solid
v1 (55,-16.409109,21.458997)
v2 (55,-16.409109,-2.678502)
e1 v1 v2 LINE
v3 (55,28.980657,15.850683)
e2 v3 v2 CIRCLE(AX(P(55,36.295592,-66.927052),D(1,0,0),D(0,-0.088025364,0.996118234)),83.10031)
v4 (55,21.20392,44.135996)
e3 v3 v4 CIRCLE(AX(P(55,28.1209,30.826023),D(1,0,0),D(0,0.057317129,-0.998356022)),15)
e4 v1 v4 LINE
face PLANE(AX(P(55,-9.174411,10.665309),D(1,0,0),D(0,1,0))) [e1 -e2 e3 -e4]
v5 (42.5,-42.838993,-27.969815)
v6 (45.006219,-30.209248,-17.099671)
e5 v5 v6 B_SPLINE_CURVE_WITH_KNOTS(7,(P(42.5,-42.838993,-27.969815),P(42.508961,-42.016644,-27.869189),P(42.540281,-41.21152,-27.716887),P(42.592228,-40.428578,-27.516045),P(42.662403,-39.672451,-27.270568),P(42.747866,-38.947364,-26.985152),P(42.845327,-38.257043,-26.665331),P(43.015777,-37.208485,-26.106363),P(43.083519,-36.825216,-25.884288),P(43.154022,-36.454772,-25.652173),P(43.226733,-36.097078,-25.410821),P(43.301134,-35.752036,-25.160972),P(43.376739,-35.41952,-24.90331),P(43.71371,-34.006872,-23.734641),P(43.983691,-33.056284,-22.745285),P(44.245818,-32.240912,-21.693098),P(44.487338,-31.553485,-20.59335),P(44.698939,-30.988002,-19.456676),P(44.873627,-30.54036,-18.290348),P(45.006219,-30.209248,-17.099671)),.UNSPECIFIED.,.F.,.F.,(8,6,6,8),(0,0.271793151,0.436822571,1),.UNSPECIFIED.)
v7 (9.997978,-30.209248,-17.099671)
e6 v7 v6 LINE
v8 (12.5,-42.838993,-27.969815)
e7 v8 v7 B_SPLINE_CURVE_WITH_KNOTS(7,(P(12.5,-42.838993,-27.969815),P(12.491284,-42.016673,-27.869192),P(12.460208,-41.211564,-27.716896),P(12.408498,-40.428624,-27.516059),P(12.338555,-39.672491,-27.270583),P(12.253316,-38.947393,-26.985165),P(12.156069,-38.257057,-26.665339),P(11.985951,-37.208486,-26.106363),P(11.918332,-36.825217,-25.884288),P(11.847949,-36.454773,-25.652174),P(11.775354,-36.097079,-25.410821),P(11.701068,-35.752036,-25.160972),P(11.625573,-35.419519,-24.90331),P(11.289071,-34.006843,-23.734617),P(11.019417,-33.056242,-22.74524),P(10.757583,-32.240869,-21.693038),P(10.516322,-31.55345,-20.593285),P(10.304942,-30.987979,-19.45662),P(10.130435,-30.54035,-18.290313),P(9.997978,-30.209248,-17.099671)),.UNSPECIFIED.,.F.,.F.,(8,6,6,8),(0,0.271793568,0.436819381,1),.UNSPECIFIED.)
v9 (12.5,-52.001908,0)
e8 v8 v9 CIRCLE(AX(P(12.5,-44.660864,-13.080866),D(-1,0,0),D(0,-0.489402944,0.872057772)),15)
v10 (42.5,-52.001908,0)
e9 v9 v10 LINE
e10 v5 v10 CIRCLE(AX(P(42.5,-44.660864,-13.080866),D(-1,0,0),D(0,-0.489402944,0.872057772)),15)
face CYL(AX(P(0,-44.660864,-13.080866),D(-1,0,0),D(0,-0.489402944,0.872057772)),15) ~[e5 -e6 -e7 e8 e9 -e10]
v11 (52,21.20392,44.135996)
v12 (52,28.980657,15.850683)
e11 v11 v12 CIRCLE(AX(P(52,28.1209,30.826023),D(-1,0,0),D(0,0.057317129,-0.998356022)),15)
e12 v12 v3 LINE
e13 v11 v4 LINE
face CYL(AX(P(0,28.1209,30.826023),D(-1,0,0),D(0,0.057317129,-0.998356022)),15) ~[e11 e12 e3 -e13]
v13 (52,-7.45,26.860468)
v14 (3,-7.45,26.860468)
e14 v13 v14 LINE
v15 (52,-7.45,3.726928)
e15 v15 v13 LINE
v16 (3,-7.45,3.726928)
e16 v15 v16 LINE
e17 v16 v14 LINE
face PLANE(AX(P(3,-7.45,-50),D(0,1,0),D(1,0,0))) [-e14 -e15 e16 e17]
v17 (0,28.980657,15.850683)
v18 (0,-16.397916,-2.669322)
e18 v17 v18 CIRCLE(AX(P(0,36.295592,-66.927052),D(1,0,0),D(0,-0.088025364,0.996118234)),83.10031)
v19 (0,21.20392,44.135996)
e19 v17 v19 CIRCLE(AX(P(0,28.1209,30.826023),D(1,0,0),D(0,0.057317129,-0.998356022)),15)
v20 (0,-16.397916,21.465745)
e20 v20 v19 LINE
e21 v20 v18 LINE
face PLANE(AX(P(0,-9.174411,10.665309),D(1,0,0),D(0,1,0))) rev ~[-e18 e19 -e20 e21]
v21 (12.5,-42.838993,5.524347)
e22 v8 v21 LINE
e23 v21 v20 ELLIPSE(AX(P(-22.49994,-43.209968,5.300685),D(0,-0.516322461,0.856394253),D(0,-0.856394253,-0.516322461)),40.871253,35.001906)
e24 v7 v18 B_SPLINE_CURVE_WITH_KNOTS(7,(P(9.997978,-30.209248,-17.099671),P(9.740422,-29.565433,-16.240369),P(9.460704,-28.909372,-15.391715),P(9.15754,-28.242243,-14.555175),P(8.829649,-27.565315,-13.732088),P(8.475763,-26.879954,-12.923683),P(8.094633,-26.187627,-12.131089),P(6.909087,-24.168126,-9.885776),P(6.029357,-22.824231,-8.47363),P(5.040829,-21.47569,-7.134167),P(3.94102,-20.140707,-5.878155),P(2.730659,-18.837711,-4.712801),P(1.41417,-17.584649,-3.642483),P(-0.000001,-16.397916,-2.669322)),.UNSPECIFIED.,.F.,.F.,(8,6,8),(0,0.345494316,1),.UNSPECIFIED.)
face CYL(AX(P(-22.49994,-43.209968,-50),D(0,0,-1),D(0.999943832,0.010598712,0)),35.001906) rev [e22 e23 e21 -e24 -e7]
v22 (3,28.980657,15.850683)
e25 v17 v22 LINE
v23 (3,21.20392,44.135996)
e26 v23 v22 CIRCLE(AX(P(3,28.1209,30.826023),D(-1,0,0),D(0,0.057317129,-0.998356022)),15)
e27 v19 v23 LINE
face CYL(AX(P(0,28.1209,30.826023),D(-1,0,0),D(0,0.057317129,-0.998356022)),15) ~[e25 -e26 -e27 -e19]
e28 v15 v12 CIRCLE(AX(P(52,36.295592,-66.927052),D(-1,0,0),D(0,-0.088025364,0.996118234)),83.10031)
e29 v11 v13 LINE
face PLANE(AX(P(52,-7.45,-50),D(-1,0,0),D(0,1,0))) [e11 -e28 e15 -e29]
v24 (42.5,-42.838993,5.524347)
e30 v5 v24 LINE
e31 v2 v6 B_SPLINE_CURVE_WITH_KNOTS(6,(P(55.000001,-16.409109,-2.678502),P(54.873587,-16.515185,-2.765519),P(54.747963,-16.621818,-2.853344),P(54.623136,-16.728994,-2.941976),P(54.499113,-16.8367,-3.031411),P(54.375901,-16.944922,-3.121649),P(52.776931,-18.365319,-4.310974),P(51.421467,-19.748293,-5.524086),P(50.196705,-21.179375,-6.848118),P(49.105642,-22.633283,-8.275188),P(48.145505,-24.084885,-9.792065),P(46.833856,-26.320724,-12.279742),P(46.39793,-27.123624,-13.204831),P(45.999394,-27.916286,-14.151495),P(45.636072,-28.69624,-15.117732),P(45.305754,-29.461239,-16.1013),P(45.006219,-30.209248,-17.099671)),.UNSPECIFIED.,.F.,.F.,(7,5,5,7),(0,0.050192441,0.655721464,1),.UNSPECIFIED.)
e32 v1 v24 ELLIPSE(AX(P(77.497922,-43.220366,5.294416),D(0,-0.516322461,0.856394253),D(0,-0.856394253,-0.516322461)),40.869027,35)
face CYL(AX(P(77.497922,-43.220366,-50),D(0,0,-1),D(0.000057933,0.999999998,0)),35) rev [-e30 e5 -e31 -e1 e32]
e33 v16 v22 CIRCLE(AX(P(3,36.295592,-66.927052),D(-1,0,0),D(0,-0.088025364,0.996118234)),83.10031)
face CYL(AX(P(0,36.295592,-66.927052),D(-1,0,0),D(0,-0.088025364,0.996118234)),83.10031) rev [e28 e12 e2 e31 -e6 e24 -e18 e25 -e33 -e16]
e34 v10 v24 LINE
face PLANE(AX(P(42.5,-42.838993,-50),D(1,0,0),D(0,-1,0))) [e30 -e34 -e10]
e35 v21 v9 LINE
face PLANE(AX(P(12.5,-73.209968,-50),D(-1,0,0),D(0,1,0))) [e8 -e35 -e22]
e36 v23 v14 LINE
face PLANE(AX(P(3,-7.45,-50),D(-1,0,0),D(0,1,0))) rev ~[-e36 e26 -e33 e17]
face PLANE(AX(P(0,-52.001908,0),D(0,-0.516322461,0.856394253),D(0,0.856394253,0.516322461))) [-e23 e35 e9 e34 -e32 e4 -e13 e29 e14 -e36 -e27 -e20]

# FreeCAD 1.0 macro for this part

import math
import FreeCAD as App
import Part
import Sketcher
Q = App.Units.Quantity


def add_polygon(sketch, points):
    """Adds a closed chain of lines whose ends are joined by coincident constraints."""
    first, n = sketch.GeometryCount, len(points)
    for a, b in zip(points, points[1:] + points[:1]):
        sketch.addGeometry(Part.LineSegment(App.Vector(*a, 0), App.Vector(*b, 0)), False)
    for i in range(n):
        sketch.addConstraint(Sketcher.Constraint("Coincident", first + i, 2, first + (i + 1) % n, 1))

doc = App.newDocument("Part")
params = doc.addObject("Spreadsheet::Sheet", "Params")
for row, (alias, value) in enumerate([
    ("sketch1_radius", "15 mm"),
    ("pad1_length", "55 mm"),
    ("sketch2_width", "49 mm"),
    ("sketch2_height", "60.9 mm"),
    ("pocket1_length", "500 mm"),
    ("sketch3_radius", "35 mm"),
    ("sketch3_height", "30 mm"),
    ("pocket2_length", "500 mm"),
], start=1):
    params.set(f"A{row}", alias)
    params.set(f"B{row}", "=" + value)
    params.setAlias(f"B{row}", alias)

body = doc.addObject("PartDesign::Body", "Body")

# Sketch on YZ plane
sketch1 = doc.addObject("Sketcher::SketchObject", "Sketch")
body.addObject(sketch1)
sketch1.AttachmentSupport = (doc.YZ_Plane, [""])
sketch1.MapMode = "FlatFace"
sketch1.addGeometry([
    Part.ArcOfCircle(Part.Circle(App.Vector(28, 31, 0), App.Vector(0, 0, 1), 15), math.radians(-87), math.radians(117)),
    Part.LineSegment(App.Vector(21, 44, 0), App.Vector(-52, 0, 0)),
    Part.ArcOfCircle(Part.Circle(App.Vector(-45, -13, 0), App.Vector(0, 0, 1), 15), math.radians(119), math.radians(344)),
    Part.ArcOfCircle(Part.Circle(App.Vector(36, -67, 0), App.Vector(0, 0, 1), 83), math.radians(95), math.radians(143)),
], False)
sketch1.addConstraint([
    Sketcher.Constraint("Coincident", 0, 2, 1, 1),
    Sketcher.Constraint("Coincident", 1, 2, 2, 1),
    Sketcher.Constraint("Coincident", 2, 2, 3, 2),
    Sketcher.Constraint("Coincident", 3, 1, 0, 1),
    Sketcher.Constraint("Equal", 0, 2),
    Sketcher.Constraint("PointOnObject", 1, 2, -1),
    Sketcher.Constraint("Radius", 0, Q("15 mm")),
    Sketcher.Constraint("Radius", 3, Q("83.10031 mm")),
    Sketcher.Constraint("DistanceX", -1, 1, 0, 3, Q("28.1209 mm")),
    Sketcher.Constraint("DistanceX", 1, 2, 3, 3, Q("88.2975 mm")),
    Sketcher.Constraint("DistanceY", 3, 3, -1, 1, Q("66.927052 mm")),
    Sketcher.Constraint("DistanceX", -1, 1, 0, 2, Q("21.20392 mm")),
    Sketcher.Constraint("DistanceY", 2, 2, -1, 1, Q("17.099671 mm")),
    Sketcher.Constraint("DistanceY", 2, 3, 0, 3, Q("43.906889 mm")),
    Sketcher.Constraint("DistanceX", 1, 2, 0, 3, Q("80.122808 mm")),
])
sketch1.setExpression("Constraints[6]", "Params.sketch1_radius")
pad1 = doc.addObject("PartDesign::Pad", "Pad")
body.addObject(pad1)
pad1.Profile = sketch1
pad1.setExpression("Length", "Params.pad1_length")

# Sketch on XY plane
sketch2 = doc.addObject("Sketcher::SketchObject", "Sketch001")
body.addObject(sketch2)
sketch2.AttachmentSupport = (doc.XY_Plane, [""])
sketch2.MapMode = "FlatFace"
sketch2.AttachmentOffset = App.Placement(App.Vector(0, 0, -50), App.Rotation())
add_polygon(sketch2, [(3, 53), (3, -7), (52, -7), (52, 53)])  # lines 0-3
sketch2.addConstraint([
    Sketcher.Constraint("Vertical", 0),
    Sketcher.Constraint("Horizontal", 1),
    Sketcher.Constraint("Vertical", 2),
    Sketcher.Constraint("Horizontal", 3),
    Sketcher.Constraint("DistanceX", 1, 1, 1, 2, Q("49 mm")),
    Sketcher.Constraint("DistanceY", 0, 2, 0, 1, Q("60.9 mm")),
    Sketcher.Constraint("DistanceX", -1, 1, 0, 2, Q("3 mm")),
    Sketcher.Constraint("DistanceY", 0, 2, -1, 1, Q("7.45 mm")),
])
sketch2.setExpression("Constraints[8]", "Params.sketch2_width")
sketch2.setExpression("Constraints[9]", "Params.sketch2_height")
pocket1 = doc.addObject("PartDesign::Pocket", "Pocket")
body.addObject(pocket1)
pocket1.Profile = sketch2
pocket1.setExpression("Length", "Params.pocket1_length")
pocket1.Reversed = True

# Sketch on XY plane
sketch3 = doc.addObject("Sketcher::SketchObject", "Sketch002")
body.addObject(sketch3)
sketch3.AttachmentSupport = (doc.XY_Plane, [""])
sketch3.MapMode = "FlatFace"
sketch3.AttachmentOffset = App.Placement(App.Vector(0, 0, -50), App.Rotation())
sketch3.addGeometry([
    Part.LineSegment(App.Vector(-22, -73, 0), App.Vector(12, -73, 0)),  # 0
    Part.LineSegment(App.Vector(12, -73, 0), App.Vector(12, -43, 0)),  # 1
    Part.ArcOfCircle(Part.Circle(App.Vector(-22, -43, 0), App.Vector(0, 0, 1), 35), math.radians(1), math.radians(90)),  # 2
    Part.LineSegment(App.Vector(-22, -8, 0), App.Vector(-22, -73, 0)),  # 3
    Part.LineSegment(App.Vector(42, -43, 0), App.Vector(42, -73, 0)),  # 4
    Part.LineSegment(App.Vector(42, -73, 0), App.Vector(77, -73, 0)),  # 5
    Part.LineSegment(App.Vector(77, -73, 0), App.Vector(77, -43, 0)),  # 6
    Part.LineSegment(App.Vector(77, -43, 0), App.Vector(77, -8, 0)),  # 7
    Part.ArcOfCircle(Part.Circle(App.Vector(77, -43, 0), App.Vector(0, 0, 1), 35), math.radians(90), math.radians(179)),  # 8
], False)
sketch3.addConstraint([
    Sketcher.Constraint("Coincident", 0, 2, 1, 1),
    Sketcher.Constraint("Coincident", 1, 2, 2, 1),
    Sketcher.Constraint("Coincident", 2, 2, 3, 1),
    Sketcher.Constraint("Coincident", 3, 2, 0, 1),
    Sketcher.Constraint("Coincident", 4, 2, 5, 1),
    Sketcher.Constraint("Coincident", 5, 2, 6, 1),
    Sketcher.Constraint("Coincident", 6, 2, 7, 1),
    Sketcher.Constraint("Coincident", 7, 2, 8, 1),
    Sketcher.Constraint("Coincident", 8, 2, 4, 1),
    Sketcher.Constraint("Horizontal", 0),
    Sketcher.Constraint("Vertical", 1),
    Sketcher.Constraint("Vertical", 3),
    Sketcher.Constraint("Vertical", 4),
    Sketcher.Constraint("Horizontal", 5),
    Sketcher.Constraint("Vertical", 6),
    Sketcher.Constraint("Coincident", 6, 2, 8, 3),
    Sketcher.Constraint("Horizontal", 1, 2, 8, 2),
    Sketcher.Constraint("Radius", 8, Q("35 mm")),
    Sketcher.Constraint("DistanceY", 6, 1, 6, 2, Q("30 mm")),
    Sketcher.Constraint("DistanceY", 0, 2, 2, 3, Q("30 mm")),
    Sketcher.Constraint("DistanceX", 0, 2, 4, 2, Q("30 mm")),
    Sketcher.Constraint("DistanceX", -1, 1, 0, 2, Q("12.5 mm")),
    Sketcher.Constraint("Radius", 2, Q("35.001906 mm")),
    Sketcher.Constraint("DistanceX", 0, 1, 0, 2, Q("34.999941 mm")),
    Sketcher.Constraint("DistanceY", 8, 3, 2, 3, Q("0.010398 mm")),
    Sketcher.Constraint("DistanceX", 5, 1, 5, 2, Q("34.997922 mm")),
    Sketcher.Constraint("DistanceY", 2, 3, -1, 1, Q("43.209968 mm")),
    Sketcher.Constraint("DistanceX", -1, 1, 7, 2, Q("77.49995 mm")),
])
sketch3.setExpression("Constraints[17]", "Params.sketch3_radius")
sketch3.setExpression("Constraints[18]", "Params.sketch3_height")
pocket2 = doc.addObject("PartDesign::Pocket", "Pocket001")
body.addObject(pocket2)
pocket2.Profile = sketch3
pocket2.setExpression("Length", "Params.pocket2_length")
pocket2.Reversed = True

doc.recompute()
